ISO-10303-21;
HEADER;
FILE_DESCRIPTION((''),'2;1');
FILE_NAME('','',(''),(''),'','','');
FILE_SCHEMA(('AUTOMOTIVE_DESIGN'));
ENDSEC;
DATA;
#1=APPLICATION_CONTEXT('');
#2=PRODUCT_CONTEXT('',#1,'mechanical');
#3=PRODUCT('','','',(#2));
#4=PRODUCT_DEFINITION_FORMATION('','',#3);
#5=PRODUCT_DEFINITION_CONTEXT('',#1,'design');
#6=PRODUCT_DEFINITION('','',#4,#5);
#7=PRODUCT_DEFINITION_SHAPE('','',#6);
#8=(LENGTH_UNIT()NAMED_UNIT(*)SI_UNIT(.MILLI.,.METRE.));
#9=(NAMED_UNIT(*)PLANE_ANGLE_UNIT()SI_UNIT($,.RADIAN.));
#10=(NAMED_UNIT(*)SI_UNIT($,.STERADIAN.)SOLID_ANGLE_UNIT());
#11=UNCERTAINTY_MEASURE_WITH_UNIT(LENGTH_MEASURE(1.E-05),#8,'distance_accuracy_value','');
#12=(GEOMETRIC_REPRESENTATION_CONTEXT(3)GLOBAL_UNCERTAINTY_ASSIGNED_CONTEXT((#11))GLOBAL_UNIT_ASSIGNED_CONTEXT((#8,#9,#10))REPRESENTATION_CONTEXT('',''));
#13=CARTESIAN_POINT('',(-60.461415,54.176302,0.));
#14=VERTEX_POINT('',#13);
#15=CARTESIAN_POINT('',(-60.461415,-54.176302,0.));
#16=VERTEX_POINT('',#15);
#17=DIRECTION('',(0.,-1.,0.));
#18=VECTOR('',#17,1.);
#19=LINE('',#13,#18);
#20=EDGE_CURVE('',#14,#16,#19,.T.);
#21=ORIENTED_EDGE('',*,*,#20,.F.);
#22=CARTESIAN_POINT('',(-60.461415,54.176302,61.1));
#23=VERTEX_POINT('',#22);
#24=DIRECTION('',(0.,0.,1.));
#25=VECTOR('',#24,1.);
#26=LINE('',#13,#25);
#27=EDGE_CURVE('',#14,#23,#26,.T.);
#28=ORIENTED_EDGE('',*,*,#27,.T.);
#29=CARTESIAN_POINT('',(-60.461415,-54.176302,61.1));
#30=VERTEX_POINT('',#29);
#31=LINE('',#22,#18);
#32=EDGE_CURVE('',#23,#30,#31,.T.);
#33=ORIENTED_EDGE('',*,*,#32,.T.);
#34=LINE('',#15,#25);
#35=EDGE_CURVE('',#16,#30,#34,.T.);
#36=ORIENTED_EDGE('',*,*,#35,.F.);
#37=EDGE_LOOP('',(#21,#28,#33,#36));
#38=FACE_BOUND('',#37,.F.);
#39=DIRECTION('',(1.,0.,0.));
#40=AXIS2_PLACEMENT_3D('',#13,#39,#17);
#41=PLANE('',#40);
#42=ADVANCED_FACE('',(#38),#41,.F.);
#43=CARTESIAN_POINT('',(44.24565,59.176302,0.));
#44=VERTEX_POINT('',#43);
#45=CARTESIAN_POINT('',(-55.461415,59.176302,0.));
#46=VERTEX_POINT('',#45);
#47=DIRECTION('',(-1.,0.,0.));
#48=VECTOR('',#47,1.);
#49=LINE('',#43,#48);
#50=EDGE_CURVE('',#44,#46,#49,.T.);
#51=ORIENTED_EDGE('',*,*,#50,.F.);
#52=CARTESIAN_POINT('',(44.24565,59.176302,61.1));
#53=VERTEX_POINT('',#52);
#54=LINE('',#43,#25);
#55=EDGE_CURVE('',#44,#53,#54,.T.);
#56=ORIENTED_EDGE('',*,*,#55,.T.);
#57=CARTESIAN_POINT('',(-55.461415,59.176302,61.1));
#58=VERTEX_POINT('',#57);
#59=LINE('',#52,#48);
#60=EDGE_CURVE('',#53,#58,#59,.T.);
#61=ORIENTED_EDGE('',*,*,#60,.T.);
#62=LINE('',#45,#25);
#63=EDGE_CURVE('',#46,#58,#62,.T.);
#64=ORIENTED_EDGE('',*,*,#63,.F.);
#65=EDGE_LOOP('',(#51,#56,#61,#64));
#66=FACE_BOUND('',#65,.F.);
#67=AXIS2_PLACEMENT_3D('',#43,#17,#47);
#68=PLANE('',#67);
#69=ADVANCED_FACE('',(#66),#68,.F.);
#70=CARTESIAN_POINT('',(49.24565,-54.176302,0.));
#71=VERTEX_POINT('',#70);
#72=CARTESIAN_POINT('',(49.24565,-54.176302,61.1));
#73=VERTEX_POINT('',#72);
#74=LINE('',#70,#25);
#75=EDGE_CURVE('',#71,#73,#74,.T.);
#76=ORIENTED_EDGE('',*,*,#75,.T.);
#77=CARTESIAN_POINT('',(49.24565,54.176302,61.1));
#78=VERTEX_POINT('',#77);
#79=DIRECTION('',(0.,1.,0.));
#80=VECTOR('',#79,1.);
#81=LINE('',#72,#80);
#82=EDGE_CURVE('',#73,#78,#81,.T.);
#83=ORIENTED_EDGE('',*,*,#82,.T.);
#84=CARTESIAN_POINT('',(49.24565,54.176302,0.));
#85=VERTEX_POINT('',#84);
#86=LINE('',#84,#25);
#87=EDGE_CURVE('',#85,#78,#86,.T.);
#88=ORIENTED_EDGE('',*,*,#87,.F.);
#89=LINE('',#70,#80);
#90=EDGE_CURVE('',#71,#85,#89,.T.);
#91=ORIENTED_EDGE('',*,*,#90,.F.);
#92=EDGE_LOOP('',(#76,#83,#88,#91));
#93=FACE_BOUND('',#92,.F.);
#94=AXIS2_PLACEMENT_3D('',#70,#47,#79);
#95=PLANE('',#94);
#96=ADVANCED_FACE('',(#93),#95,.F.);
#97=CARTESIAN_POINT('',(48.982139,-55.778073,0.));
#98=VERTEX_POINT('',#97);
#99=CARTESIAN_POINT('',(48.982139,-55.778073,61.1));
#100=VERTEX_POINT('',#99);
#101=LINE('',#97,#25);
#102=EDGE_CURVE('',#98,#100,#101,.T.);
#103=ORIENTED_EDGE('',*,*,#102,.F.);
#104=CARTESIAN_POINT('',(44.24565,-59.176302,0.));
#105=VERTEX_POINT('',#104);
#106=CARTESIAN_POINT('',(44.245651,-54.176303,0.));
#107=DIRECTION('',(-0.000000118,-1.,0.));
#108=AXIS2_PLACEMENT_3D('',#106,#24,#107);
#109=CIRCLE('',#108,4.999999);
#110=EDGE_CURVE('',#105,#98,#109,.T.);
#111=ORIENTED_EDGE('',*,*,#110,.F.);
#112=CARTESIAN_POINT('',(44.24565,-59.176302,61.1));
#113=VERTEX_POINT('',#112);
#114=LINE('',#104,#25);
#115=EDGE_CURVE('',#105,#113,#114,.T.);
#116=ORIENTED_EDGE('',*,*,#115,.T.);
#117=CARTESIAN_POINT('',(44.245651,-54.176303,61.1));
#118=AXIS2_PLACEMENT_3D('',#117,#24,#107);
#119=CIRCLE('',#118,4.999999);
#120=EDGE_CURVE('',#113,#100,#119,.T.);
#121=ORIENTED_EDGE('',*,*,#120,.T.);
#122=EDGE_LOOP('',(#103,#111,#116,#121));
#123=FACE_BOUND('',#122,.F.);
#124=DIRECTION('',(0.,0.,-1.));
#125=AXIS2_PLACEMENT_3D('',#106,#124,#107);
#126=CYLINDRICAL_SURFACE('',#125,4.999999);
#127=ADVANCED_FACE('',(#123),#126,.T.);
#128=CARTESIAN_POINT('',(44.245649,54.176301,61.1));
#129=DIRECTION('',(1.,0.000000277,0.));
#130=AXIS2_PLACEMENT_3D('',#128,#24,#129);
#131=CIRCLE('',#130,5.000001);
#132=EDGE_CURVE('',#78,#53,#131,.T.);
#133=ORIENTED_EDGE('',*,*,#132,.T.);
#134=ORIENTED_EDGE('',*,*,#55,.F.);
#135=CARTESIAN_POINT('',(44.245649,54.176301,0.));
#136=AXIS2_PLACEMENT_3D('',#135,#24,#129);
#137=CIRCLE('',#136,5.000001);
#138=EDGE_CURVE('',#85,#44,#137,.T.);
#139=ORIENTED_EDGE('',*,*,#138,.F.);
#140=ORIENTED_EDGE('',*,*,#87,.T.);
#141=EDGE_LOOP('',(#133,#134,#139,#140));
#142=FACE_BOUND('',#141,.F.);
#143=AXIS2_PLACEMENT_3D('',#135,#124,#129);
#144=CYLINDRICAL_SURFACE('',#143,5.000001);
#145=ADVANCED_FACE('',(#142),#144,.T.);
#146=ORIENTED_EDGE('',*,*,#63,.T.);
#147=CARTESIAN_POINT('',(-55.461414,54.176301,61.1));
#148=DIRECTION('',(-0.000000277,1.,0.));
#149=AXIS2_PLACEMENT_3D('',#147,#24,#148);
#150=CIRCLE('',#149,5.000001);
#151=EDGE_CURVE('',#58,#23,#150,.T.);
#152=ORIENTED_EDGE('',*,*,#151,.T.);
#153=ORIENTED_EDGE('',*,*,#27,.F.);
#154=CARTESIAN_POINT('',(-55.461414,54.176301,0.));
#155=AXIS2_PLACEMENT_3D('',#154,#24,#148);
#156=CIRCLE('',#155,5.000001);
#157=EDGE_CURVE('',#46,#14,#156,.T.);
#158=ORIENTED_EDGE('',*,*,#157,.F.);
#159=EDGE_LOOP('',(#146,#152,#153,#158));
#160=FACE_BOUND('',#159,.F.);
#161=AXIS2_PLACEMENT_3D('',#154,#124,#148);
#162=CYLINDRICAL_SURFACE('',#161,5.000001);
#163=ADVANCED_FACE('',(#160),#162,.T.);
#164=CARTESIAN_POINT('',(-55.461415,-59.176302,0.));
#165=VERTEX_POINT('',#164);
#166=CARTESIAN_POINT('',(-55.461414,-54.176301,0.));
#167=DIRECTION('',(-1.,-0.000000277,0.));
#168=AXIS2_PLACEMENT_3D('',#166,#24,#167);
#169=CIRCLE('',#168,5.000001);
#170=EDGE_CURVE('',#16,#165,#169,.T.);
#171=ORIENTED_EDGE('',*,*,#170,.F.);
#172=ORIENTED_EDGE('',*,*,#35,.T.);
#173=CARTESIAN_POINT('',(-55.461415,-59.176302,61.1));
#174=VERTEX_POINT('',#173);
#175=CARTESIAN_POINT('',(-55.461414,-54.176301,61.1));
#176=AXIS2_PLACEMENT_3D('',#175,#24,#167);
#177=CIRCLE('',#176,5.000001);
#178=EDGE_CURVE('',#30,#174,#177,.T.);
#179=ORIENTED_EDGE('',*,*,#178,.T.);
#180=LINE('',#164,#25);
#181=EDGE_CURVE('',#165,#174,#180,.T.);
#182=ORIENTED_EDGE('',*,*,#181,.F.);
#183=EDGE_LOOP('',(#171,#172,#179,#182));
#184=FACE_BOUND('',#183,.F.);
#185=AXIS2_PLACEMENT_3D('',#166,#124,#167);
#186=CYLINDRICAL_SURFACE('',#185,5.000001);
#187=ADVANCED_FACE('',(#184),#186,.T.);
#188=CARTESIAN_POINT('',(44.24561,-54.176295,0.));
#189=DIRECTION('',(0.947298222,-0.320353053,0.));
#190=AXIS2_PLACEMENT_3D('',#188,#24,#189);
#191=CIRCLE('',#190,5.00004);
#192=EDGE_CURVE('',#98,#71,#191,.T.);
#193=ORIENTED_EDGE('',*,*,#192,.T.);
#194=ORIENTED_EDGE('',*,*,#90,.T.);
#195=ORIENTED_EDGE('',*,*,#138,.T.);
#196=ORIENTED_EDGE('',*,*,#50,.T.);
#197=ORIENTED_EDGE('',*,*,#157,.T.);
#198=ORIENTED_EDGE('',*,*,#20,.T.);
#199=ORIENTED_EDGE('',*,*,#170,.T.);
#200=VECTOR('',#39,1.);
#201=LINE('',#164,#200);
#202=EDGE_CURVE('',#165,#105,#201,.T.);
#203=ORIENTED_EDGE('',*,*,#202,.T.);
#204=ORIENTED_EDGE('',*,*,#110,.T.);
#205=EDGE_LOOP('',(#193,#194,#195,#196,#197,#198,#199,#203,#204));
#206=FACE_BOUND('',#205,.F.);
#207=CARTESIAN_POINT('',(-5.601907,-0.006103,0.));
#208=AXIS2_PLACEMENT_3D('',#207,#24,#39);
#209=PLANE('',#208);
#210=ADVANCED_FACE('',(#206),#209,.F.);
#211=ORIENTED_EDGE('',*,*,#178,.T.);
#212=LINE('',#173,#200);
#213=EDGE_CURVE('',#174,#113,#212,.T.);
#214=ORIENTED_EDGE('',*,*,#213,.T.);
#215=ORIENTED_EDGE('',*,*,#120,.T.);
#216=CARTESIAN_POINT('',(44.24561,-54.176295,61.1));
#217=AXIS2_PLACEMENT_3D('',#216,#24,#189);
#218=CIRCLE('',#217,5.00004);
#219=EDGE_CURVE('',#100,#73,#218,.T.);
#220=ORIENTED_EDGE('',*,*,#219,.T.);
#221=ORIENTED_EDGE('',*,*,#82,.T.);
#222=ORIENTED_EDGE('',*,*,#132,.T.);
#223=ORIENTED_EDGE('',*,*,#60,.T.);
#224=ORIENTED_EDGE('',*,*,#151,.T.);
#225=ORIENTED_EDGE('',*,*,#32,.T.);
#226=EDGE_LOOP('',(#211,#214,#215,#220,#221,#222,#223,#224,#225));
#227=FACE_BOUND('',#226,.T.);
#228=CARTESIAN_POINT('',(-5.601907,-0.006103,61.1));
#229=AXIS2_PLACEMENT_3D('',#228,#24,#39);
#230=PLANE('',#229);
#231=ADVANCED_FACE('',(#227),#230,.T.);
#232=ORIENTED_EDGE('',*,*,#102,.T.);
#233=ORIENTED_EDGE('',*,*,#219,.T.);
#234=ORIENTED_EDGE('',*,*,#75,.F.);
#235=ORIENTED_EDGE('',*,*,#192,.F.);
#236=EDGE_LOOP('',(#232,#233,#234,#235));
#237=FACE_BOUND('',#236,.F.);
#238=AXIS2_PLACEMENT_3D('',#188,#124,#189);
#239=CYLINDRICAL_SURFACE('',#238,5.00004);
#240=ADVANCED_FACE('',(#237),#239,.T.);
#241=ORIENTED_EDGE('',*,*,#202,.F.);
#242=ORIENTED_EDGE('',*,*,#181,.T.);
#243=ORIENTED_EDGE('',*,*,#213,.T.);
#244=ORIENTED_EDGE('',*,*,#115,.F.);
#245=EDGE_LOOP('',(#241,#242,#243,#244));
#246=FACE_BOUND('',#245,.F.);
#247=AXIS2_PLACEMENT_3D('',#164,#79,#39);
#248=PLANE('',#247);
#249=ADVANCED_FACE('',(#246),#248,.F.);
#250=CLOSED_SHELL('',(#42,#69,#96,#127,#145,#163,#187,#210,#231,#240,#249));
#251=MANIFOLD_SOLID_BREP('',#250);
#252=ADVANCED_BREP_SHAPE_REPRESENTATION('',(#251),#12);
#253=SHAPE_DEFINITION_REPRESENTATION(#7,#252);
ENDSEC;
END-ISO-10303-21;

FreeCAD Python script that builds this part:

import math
import FreeCAD as App
import Part
import Sketcher
from FreeCAD import Vector
Q = App.Units.Quantity

doc = App.newDocument("Part")
body = doc.addObject("PartDesign::Body", "Body")

sketch1 = body.newObject("Sketcher::SketchObject", "Sketch")
sketch1.AttachmentSupport = (doc.getObject("XY_Plane"), [""])
sketch1.MapMode = "FlatFace"
sketch1.addGeometry([
    Part.LineSegment(Vector(-55.461415, -59.176302, 0), Vector(44.24565, -59.176302, 0)),
    Part.ArcOfCircle(Part.Circle(Vector(44.245651, -54.176303, 0), Vector(0, 0, 1), 4.999999), math.radians(-90.000007), math.radians(-18.684338)),
    Part.ArcOfCircle(Part.Circle(Vector(44.24561, -54.176295, 0), Vector(0, 0, 1), 5.00004), math.radians(-18.684277), math.radians(-0.000081)),
    Part.LineSegment(Vector(49.24565, -54.176302, 0), Vector(49.24565, 54.176302, 0)),
    Part.ArcOfCircle(Part.Circle(Vector(44.245649, 54.176301, 0), Vector(0, 0, 1), 5.000001), math.radians(0.000016), math.radians(89.999984)),
    Part.LineSegment(Vector(44.24565, 59.176302, 0), Vector(-55.461415, 59.176302, 0)),
    Part.ArcOfCircle(Part.Circle(Vector(-55.461414, 54.176301, 0), Vector(0, 0, 1), 5.000001), math.radians(90.000016), math.radians(179.999984)),
    Part.LineSegment(Vector(-60.461415, 54.176302, 0), Vector(-60.461415, -54.176302, 0)),
    Part.ArcOfCircle(Part.Circle(Vector(-55.461414, -54.176301, 0), Vector(0, 0, 1), 5.000001), math.radians(-179.999984), math.radians(-90.000016)),
], False)
sketch1.addConstraint([
    Sketcher.Constraint("Coincident", 0, 2, 1, 1),
    Sketcher.Constraint("Coincident", 1, 2, 2, 1),
    Sketcher.Constraint("Coincident", 2, 2, 3, 1),
    Sketcher.Constraint("Coincident", 3, 2, 4, 1),
    Sketcher.Constraint("Coincident", 4, 2, 5, 1),
    Sketcher.Constraint("Coincident", 5, 2, 6, 1),
    Sketcher.Constraint("Coincident", 6, 2, 7, 1),
    Sketcher.Constraint("Coincident", 7, 2, 8, 1),
    Sketcher.Constraint("Coincident", 8, 2, 0, 1),
    Sketcher.Constraint("Horizontal", 0),
    Sketcher.Constraint("Vertical", 3),
    Sketcher.Constraint("Horizontal", 5),
    Sketcher.Constraint("Vertical", 7),
    Sketcher.Constraint("Radius", 1, Q("4.999999 mm")),
    Sketcher.Constraint("Radius", 4, Q("5.000001 mm")),
    Sketcher.Constraint("Radius", 6, Q("5.000001 mm")),
    Sketcher.Constraint("Radius", 8, Q("5.000001 mm")),
    Sketcher.Constraint("DistanceX", 1, 3, 2, 2, Q("4.999999 mm")),
    Sketcher.Constraint("DistanceX", 0, 2, 2, 2, Q("5 mm")),
    Sketcher.Constraint("DistanceY", 0, 2, 2, 2, Q("5 mm")),
    Sketcher.Constraint("DistanceX", 4, 2, 3, 2, Q("5 mm")),
    Sketcher.Constraint("DistanceY", 3, 2, 4, 2, Q("5 mm")),
    Sketcher.Constraint("DistanceX", 6, 2, 5, 2, Q("5 mm")),
    Sketcher.Constraint("DistanceY", 6, 2, 5, 2, Q("5 mm")),
    Sketcher.Constraint("DistanceY", 0, 2, 7, 2, Q("5 mm")),
    Sketcher.Constraint("DistanceX", 7, 2, 8, 2, Q("5 mm")),
    Sketcher.Constraint("Radius", 2, Q("5.00004 mm")),
    Sketcher.Constraint("DistanceY", -1, 1, 4, 3, Q("54.176301 mm")),
    Sketcher.Constraint("DistanceY", 8, 3, -1, 1, Q("54.176301 mm")),
    Sketcher.Constraint("DistanceX", 0, 1, 0, 2, Q("99.707065 mm")),
    Sketcher.Constraint("DistanceX", -1, 1, 1, 3, Q("44.245651 mm")),
    Sketcher.Constraint("DistanceX", -1, 1, 1, 2, Q("48.982139 mm")),
])
pad1 = body.newObject("PartDesign::Pad", "Pad")
pad1.Profile = sketch1
pad1.Length = 61.1

doc.recompute()
